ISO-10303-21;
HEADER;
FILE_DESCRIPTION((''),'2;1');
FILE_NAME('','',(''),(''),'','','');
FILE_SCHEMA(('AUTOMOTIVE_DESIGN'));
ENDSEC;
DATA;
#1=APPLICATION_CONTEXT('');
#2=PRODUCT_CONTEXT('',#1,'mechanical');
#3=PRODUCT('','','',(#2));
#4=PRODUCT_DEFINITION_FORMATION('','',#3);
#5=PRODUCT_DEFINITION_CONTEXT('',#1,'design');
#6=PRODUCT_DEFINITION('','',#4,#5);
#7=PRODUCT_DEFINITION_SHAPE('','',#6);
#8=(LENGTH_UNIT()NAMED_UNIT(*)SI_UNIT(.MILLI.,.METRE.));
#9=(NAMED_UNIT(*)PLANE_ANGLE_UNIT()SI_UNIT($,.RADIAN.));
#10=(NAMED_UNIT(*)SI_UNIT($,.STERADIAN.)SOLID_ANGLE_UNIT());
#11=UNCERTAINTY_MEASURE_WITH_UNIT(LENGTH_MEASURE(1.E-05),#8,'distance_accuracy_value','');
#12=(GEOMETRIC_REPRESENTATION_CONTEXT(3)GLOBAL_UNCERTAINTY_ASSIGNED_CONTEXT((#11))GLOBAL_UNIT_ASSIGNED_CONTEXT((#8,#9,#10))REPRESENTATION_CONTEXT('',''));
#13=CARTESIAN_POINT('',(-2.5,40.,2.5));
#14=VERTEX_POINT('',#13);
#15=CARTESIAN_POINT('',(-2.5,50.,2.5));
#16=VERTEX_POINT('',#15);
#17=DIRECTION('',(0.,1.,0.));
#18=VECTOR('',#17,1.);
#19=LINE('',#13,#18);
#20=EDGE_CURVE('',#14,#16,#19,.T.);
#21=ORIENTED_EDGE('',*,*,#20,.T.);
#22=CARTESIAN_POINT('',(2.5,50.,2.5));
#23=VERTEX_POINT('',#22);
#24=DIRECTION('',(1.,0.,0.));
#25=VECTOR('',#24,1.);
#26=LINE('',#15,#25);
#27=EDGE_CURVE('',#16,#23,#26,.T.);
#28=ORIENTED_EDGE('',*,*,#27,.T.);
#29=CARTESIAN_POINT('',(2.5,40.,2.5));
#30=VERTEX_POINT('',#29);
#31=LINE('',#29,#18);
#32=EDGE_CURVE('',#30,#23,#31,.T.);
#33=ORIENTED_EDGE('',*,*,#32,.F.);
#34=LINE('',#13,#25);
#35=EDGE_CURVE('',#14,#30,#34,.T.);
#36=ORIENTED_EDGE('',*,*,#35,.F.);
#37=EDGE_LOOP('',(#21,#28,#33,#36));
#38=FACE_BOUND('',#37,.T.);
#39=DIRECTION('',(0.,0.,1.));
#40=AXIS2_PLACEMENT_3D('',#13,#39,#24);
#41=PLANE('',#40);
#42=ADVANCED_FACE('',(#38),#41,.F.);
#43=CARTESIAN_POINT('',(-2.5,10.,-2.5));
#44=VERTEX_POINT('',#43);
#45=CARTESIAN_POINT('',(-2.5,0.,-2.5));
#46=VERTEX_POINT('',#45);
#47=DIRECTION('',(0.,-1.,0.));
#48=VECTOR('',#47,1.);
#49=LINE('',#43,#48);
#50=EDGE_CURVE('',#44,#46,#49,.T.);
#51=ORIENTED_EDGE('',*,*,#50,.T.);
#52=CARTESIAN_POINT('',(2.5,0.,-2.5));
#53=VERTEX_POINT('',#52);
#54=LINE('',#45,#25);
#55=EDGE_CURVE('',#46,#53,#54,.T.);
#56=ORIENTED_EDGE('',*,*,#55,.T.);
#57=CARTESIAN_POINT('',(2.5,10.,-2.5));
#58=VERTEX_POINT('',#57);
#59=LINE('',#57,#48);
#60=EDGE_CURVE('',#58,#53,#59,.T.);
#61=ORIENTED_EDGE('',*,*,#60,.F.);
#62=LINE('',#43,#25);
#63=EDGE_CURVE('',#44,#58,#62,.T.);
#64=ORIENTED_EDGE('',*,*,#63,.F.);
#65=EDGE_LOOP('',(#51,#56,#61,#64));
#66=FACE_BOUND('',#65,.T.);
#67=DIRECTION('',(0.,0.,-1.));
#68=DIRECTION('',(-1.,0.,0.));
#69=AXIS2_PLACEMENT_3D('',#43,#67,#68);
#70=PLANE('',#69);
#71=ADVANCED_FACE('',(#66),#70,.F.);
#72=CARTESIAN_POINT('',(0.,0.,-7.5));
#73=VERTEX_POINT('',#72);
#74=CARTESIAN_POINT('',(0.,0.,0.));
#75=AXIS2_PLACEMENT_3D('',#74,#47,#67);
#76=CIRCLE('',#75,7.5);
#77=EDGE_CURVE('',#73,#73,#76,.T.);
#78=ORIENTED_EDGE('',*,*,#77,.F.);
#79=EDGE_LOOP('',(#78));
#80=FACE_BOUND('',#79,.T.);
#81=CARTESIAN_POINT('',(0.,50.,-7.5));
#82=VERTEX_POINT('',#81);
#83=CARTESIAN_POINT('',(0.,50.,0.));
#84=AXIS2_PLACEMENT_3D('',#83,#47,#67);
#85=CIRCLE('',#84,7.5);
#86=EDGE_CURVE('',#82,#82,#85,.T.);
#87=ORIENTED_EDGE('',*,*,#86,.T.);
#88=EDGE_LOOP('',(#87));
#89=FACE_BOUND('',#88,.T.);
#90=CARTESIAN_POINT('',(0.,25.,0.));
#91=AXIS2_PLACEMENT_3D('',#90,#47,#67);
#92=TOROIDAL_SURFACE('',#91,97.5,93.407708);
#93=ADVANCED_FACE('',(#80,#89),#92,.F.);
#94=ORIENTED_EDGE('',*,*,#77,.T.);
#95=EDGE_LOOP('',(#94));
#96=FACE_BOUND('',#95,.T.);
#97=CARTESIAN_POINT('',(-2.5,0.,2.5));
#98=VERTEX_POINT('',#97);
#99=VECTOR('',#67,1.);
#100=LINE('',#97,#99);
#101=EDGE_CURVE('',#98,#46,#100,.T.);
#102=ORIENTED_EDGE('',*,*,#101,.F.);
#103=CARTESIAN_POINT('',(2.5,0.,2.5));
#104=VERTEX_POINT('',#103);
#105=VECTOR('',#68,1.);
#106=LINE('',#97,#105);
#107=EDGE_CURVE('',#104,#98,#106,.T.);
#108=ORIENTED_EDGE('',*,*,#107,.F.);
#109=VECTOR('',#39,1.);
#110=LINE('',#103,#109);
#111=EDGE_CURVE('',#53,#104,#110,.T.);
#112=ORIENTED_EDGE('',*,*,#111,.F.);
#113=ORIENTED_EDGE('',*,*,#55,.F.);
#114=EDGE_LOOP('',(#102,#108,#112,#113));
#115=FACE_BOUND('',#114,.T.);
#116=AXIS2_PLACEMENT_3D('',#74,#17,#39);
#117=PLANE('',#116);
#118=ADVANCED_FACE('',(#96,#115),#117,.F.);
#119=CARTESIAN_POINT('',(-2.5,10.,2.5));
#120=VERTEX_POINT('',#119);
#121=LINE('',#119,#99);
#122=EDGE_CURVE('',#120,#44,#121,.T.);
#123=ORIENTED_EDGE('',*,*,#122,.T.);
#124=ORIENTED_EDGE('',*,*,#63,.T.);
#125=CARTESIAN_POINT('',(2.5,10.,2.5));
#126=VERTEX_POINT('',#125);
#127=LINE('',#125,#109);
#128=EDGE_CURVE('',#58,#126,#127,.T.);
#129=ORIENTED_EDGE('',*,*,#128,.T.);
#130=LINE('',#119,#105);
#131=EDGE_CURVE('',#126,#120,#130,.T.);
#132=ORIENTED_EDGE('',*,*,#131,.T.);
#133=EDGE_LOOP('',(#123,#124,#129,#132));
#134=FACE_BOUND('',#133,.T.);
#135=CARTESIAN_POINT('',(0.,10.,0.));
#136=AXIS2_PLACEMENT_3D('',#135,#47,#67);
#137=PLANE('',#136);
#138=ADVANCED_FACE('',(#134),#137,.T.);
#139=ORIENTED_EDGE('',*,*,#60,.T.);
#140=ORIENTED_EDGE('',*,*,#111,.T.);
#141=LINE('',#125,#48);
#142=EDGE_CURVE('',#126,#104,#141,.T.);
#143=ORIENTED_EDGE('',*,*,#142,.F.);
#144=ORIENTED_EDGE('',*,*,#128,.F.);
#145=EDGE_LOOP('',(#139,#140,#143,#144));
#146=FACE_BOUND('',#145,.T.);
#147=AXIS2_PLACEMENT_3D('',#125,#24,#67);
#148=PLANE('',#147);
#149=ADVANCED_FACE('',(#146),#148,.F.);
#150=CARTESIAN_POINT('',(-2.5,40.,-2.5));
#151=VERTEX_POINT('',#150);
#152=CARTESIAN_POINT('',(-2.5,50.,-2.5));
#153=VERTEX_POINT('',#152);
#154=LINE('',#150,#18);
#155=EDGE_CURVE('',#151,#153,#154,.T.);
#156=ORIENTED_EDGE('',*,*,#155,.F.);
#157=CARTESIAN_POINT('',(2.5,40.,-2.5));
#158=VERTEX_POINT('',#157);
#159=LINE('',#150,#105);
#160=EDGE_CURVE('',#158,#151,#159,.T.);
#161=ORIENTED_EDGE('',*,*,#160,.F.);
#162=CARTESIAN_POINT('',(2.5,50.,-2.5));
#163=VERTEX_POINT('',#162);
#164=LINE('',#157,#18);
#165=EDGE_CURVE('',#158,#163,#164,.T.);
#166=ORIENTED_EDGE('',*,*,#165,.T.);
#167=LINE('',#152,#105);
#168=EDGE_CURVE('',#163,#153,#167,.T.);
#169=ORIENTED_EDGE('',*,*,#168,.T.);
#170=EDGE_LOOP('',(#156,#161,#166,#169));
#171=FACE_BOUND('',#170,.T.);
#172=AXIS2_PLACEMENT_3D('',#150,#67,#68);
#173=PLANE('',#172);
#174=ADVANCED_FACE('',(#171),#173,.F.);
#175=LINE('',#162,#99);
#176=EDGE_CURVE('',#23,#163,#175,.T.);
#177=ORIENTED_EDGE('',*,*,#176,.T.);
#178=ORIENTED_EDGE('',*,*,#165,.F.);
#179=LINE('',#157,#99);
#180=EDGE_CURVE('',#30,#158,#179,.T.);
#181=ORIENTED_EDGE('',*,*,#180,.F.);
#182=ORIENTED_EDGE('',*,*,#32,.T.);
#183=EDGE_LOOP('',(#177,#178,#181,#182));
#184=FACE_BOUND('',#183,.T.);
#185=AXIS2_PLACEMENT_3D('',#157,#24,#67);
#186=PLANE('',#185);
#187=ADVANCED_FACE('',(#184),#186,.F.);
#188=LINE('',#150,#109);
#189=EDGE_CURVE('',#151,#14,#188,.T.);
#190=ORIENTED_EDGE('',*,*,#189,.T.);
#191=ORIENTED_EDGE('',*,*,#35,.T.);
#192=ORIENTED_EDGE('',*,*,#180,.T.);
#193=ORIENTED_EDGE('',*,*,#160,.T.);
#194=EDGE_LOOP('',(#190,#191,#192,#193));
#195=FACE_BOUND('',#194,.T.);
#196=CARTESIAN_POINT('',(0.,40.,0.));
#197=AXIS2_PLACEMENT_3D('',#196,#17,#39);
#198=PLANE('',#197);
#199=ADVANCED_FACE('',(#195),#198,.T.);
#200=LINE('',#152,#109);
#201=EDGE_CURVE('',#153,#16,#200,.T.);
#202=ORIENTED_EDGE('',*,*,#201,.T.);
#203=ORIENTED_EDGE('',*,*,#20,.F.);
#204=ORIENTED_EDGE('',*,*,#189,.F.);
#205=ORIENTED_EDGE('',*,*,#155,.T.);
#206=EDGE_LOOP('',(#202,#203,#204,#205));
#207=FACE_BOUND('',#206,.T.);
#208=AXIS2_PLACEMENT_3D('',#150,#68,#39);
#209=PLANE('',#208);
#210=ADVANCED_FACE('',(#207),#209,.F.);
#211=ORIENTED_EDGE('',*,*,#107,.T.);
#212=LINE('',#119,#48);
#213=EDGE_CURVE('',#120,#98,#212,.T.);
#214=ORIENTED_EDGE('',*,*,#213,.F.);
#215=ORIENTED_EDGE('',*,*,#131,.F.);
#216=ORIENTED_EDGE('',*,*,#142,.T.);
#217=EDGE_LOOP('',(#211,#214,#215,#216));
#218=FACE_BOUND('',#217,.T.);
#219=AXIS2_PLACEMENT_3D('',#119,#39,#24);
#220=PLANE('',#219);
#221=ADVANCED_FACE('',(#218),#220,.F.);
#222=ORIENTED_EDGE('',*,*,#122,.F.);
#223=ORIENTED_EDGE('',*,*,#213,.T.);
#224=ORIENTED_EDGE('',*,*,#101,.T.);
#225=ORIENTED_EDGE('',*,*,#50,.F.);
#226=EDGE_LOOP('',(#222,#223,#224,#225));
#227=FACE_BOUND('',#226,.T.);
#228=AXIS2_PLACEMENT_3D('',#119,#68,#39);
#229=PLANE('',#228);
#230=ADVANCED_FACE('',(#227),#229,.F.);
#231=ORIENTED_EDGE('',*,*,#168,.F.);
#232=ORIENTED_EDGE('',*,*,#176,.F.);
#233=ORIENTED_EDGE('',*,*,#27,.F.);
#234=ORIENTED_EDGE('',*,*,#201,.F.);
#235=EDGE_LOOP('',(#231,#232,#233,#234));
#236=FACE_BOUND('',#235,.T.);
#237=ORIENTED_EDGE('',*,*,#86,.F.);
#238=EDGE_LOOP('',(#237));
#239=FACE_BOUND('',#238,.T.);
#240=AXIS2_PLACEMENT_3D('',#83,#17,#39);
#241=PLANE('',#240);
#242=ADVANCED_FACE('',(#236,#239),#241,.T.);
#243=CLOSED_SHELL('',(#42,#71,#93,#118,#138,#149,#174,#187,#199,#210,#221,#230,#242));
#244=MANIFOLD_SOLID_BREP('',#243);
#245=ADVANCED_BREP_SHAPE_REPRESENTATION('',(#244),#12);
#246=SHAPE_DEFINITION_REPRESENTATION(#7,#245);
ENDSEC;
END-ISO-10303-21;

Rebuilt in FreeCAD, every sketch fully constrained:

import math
import FreeCAD as App
import Part
import Sketcher

V = App.Vector
Q = App.Units.Quantity

doc = App.newDocument("Part")
body = doc.addObject("PartDesign::Body", "Body")

sketch1 = body.newObject("Sketcher::SketchObject", "Sketch")
sketch1.AttachmentSupport = (doc.getObject("XZ_Plane"), [""])
sketch1.MapMode = "FlatFace"
sketch1.addGeometry(Part.Circle(V(0, 0, 0), V(0, 0, 1), 8), False)
sketch1.addConstraint([
    Sketcher.Constraint("Coincident", 0, 3, -1, 1),
    Sketcher.Constraint("Diameter", 0, Q("15 mm")),
])
pad1 = body.newObject("PartDesign::Pad", "Pad")
pad1.Profile = sketch1
pad1.Length = 50
pad1.Reversed = True

sketch2 = body.newObject("Sketcher::SketchObject", "Sketch001")
sketch2.AttachmentSupport = (doc.getObject("XZ_Plane"), [""])
sketch2.MapMode = "FlatFace"
sketch2.AttachmentOffset = App.Placement(V(0, 0, -50), App.Rotation())
sketch2.addGeometry([
    Part.LineSegment(V(-2, -2, 0), V(-2, 2, 0)),
    Part.LineSegment(V(-2, 2, 0), V(2, 2, 0)),
    Part.LineSegment(V(2, 2, 0), V(2, -2, 0)),
    Part.LineSegment(V(2, -2, 0), V(-2, -2, 0)),
], False)
sketch2.addConstraint([
    Sketcher.Constraint("Coincident", 0, 2, 1, 1),
    Sketcher.Constraint("Coincident", 1, 2, 2, 1),
    Sketcher.Constraint("Coincident", 2, 2, 3, 1),
    Sketcher.Constraint("Coincident", 3, 2, 0, 1),
    Sketcher.Constraint("Vertical", 0),
    Sketcher.Constraint("Horizontal", 1),
    Sketcher.Constraint("Vertical", 2),
    Sketcher.Constraint("Horizontal", 3),
    Sketcher.Constraint("Symmetric", 0, 2, 2, 2, -1, 1),
    Sketcher.Constraint("Equal", 3, 0),
    Sketcher.Constraint("DistanceX", 1, 1, 1, 2, Q("5 mm")),
])
pocket1 = body.newObject("PartDesign::Pocket", "Pocket")
pocket1.Profile = sketch2
pocket1.Length = 10
pocket1.Reversed = True

sketch3 = body.newObject("Sketcher::SketchObject", "Sketch002")
sketch3.AttachmentSupport = (doc.getObject("XZ_Plane"), [""])
sketch3.MapMode = "FlatFace"
sketch3.addGeometry([
    Part.LineSegment(V(-2, 2, 0), V(-2, -2, 0)),
    Part.LineSegment(V(-2, -2, 0), V(2, -2, 0)),
    Part.LineSegment(V(2, -2, 0), V(2, 2, 0)),
    Part.LineSegment(V(2, 2, 0), V(-2, 2, 0)),
], False)
sketch3.addConstraint([
    Sketcher.Constraint("Coincident", 0, 2, 1, 1),
    Sketcher.Constraint("Coincident", 1, 2, 2, 1),
    Sketcher.Constraint("Coincident", 2, 2, 3, 1),
    Sketcher.Constraint("Coincident", 3, 2, 0, 1),
    Sketcher.Constraint("Vertical", 0),
    Sketcher.Constraint("Horizontal", 1),
    Sketcher.Constraint("Vertical", 2),
    Sketcher.Constraint("Horizontal", 3),
    Sketcher.Constraint("Symmetric", 0, 2, 2, 2, -1, 1),
    Sketcher.Constraint("Equal", 3, 0),
    Sketcher.Constraint("DistanceX", 1, 1, 1, 2, Q("5 mm")),
])
pocket2 = body.newObject("PartDesign::Pocket", "Pocket001")
pocket2.Profile = sketch3
pocket2.Length = 10

sketch4 = body.newObject("Sketcher::SketchObject", "Sketch003")
sketch4.AttachmentSupport = (doc.getObject("YZ_Plane"), [""])
sketch4.MapMode = "FlatFace"
sketch4.addGeometry([
    Part.LineSegment(V(50, 8, 0), V(0, 8, 0)),
    Part.ArcOfCircle(Part.Circle(V(25, 98, 0), V(0, 0, 1), 93), math.radians(-106), math.radians(-74)),
], False)
sketch4.addConstraint([
    Sketcher.Constraint("Coincident", 0, 1, 1, 2),
    Sketcher.Constraint("Coincident", 1, 1, 0, 2),
    Sketcher.Constraint("Horizontal", 0),
    Sketcher.Constraint("PointOnObject", 1, 1, -2),
    Sketcher.Constraint("DistanceX", 0, 2, 0, 1, Q("50 mm")),
    Sketcher.Constraint("DistanceY", 0, 1, 1, 3, Q("90 mm")),
    Sketcher.Constraint("DistanceY", -1, 1, 1, 3, Q("97.5 mm")),
])
groove = body.newObject("PartDesign::Groove", "Groove")
groove.Profile = sketch4
groove.ReferenceAxis = (sketch4, ["H_Axis"])
groove.Angle = 360

doc.recompute()
